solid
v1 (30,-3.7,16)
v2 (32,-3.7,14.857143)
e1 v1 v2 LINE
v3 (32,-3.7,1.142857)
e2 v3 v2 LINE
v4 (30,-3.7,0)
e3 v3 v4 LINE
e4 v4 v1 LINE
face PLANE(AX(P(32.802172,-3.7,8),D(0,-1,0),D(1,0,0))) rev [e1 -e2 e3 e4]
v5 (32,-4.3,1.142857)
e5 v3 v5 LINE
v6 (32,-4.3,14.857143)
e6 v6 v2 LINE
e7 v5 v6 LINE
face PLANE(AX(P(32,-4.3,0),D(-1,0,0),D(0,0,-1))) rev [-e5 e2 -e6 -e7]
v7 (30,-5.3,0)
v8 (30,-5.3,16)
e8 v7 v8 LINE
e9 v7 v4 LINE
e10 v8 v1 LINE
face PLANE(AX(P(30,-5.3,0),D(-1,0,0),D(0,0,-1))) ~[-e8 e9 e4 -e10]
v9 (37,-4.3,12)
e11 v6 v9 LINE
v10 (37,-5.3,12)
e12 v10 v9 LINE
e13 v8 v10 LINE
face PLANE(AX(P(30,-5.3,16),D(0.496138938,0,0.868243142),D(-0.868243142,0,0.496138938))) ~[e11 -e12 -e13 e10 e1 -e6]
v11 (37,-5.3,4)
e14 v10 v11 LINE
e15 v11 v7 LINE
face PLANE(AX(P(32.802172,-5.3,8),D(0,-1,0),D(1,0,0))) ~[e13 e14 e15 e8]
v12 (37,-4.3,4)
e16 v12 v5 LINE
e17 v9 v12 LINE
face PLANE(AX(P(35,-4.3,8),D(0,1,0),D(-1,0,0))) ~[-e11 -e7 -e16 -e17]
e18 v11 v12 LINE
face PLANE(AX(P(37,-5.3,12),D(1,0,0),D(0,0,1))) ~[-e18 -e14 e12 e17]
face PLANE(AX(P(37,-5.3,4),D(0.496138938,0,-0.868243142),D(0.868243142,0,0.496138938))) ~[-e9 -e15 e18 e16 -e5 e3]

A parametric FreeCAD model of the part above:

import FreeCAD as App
import Part
import Sketcher
from FreeCAD import Vector

doc = App.newDocument("Part")
params = doc.addObject("Spreadsheet::Sheet", "Params")
for row, (alias, value) in enumerate([
    ("sketch1_width", "6 mm"),
    ("sketch1_height", "16 mm"),
    ("pad1_length", "1.6 mm"),
    ("sketch2_height", "8 mm"),
    ("sketch2_height2", "16 mm"),
    ("pad2_length", "1.6 mm"),
], start=1):
    params.set(f"A{row}", alias)
    params.set(f"B{row}", "=" + value)
    params.setAlias(f"B{row}", alias)

body = doc.addObject("PartDesign::Body", "Body")

# Sketch on XZ plane
sketch1 = body.newObject("Sketcher::SketchObject", "Sketch")
sketch1.AttachmentSupport = (doc.getObject("XZ_Plane"), [""])
sketch1.MapMode = "FlatFace"
sketch1.AttachmentOffset = App.Placement(Vector(0, 0, -4.3), App.Rotation())
sketch1.addGeometry([
    Part.LineSegment(Vector(32, 20, 0), Vector(32, 4, 0)),
    Part.LineSegment(Vector(32, 4, 0), Vector(38, 4, 0)),
    Part.LineSegment(Vector(38, 4, 0), Vector(38, 20, 0)),
    Part.LineSegment(Vector(38, 20, 0), Vector(32, 20, 0)),
], False)
sketch1.addConstraint([
    Sketcher.Constraint("Coincident", 0, 2, 1, 1),
    Sketcher.Constraint("Coincident", 1, 2, 2, 1),
    Sketcher.Constraint("Coincident", 2, 2, 3, 1),
    Sketcher.Constraint("Coincident", 3, 2, 0, 1),
    Sketcher.Constraint("Vertical", 0),
    Sketcher.Constraint("Horizontal", 1),
    Sketcher.Constraint("Vertical", 2),
    Sketcher.Constraint("Horizontal", 3),
    Sketcher.Constraint("DistanceX", 1, 1, 1, 2, 6.0),
    Sketcher.Constraint("DistanceY", 0, 2, 0, 1, 16.0),
    Sketcher.Constraint("DistanceX", -1, 1, 0, 2, 32.0),
    Sketcher.Constraint("DistanceY", -1, 1, 0, 2, 4.0),
])
sketch1.setExpression("Constraints[8]", "Params.sketch1_width")
sketch1.setExpression("Constraints[9]", "Params.sketch1_height")
pad1 = body.newObject("PartDesign::Pad", "Pad")
pad1.Profile = sketch1
pad1.setExpression("Length", "Params.pad1_length")
body2 = doc.addObject("PartDesign::Body", "Body001")

# Sketch on XZ plane
sketch2 = body2.newObject("Sketcher::SketchObject", "Sketch001")
sketch2.AttachmentSupport = (doc.getObject("XZ_Plane001"), [""])
sketch2.MapMode = "FlatFace"
sketch2.AttachmentOffset = App.Placement(Vector(0, 0, -5.3), App.Rotation())
sketch2.addGeometry([
    Part.LineSegment(Vector(37, 8, 0), Vector(37, 16, 0)),
    Part.LineSegment(Vector(37, 16, 0), Vector(30, 20, 0)),
    Part.LineSegment(Vector(30, 20, 0), Vector(30, 4, 0)),
    Part.LineSegment(Vector(30, 4, 0), Vector(37, 8, 0)),
], False)
sketch2.addConstraint([
    Sketcher.Constraint("Coincident", 0, 2, 1, 1),
    Sketcher.Constraint("Coincident", 1, 2, 2, 1),
    Sketcher.Constraint("Coincident", 2, 2, 3, 1),
    Sketcher.Constraint("Coincident", 3, 2, 0, 1),
    Sketcher.Constraint("Vertical", 0),
    Sketcher.Constraint("Vertical", 2),
    Sketcher.Constraint("Equal", 1, 3),
    Sketcher.Constraint("DistanceY", 0, 1, 0, 2, 8.0),
    Sketcher.Constraint("DistanceY", 2, 2, 2, 1, 16.0),
    Sketcher.Constraint("DistanceX", -1, 1, 0, 2, 37.0),
    Sketcher.Constraint("DistanceY", -1, 1, 0, 2, 16.0),
    Sketcher.Constraint("DistanceX", -1, 1, 1, 2, 30.0),
])
sketch2.setExpression("Constraints[7]", "Params.sketch2_height")
sketch2.setExpression("Constraints[8]", "Params.sketch2_height2")
pad2 = body2.newObject("PartDesign::Pad", "Pad001")
pad2.Profile = sketch2
pad2.setExpression("Length", "Params.pad2_length")
doc.recompute()

boolean = body2.newObject("PartDesign::Boolean", "Boolean")
boolean.Type = "Cut"
boolean.addObjects([body])
body3 = doc.addObject("PartDesign::Body", "Body002")
doc.recompute()

body2.Placement = App.Placement(Vector(0, 0, -4), App.Rotation(Vector(0, 0, 1), 0))
boolean2 = body3.newObject("PartDesign::Boolean", "Boolean001")
boolean2.Type = "Fuse"
boolean2.addObjects([body2])
body4 = doc.addObject("PartDesign::Body", "Body003")
doc.recompute()

mirroring = doc.addObject("Part::Mirroring", "Mirroring")
mirroring.Source = body3
mirroring.Base = Vector(0, 0, 0)
mirroring.Normal = Vector(0, 1, 0)
body4.BaseFeature = mirroring
doc.recompute()
body3.Visibility = False
mirroring.Visibility = False

doc.recompute()
